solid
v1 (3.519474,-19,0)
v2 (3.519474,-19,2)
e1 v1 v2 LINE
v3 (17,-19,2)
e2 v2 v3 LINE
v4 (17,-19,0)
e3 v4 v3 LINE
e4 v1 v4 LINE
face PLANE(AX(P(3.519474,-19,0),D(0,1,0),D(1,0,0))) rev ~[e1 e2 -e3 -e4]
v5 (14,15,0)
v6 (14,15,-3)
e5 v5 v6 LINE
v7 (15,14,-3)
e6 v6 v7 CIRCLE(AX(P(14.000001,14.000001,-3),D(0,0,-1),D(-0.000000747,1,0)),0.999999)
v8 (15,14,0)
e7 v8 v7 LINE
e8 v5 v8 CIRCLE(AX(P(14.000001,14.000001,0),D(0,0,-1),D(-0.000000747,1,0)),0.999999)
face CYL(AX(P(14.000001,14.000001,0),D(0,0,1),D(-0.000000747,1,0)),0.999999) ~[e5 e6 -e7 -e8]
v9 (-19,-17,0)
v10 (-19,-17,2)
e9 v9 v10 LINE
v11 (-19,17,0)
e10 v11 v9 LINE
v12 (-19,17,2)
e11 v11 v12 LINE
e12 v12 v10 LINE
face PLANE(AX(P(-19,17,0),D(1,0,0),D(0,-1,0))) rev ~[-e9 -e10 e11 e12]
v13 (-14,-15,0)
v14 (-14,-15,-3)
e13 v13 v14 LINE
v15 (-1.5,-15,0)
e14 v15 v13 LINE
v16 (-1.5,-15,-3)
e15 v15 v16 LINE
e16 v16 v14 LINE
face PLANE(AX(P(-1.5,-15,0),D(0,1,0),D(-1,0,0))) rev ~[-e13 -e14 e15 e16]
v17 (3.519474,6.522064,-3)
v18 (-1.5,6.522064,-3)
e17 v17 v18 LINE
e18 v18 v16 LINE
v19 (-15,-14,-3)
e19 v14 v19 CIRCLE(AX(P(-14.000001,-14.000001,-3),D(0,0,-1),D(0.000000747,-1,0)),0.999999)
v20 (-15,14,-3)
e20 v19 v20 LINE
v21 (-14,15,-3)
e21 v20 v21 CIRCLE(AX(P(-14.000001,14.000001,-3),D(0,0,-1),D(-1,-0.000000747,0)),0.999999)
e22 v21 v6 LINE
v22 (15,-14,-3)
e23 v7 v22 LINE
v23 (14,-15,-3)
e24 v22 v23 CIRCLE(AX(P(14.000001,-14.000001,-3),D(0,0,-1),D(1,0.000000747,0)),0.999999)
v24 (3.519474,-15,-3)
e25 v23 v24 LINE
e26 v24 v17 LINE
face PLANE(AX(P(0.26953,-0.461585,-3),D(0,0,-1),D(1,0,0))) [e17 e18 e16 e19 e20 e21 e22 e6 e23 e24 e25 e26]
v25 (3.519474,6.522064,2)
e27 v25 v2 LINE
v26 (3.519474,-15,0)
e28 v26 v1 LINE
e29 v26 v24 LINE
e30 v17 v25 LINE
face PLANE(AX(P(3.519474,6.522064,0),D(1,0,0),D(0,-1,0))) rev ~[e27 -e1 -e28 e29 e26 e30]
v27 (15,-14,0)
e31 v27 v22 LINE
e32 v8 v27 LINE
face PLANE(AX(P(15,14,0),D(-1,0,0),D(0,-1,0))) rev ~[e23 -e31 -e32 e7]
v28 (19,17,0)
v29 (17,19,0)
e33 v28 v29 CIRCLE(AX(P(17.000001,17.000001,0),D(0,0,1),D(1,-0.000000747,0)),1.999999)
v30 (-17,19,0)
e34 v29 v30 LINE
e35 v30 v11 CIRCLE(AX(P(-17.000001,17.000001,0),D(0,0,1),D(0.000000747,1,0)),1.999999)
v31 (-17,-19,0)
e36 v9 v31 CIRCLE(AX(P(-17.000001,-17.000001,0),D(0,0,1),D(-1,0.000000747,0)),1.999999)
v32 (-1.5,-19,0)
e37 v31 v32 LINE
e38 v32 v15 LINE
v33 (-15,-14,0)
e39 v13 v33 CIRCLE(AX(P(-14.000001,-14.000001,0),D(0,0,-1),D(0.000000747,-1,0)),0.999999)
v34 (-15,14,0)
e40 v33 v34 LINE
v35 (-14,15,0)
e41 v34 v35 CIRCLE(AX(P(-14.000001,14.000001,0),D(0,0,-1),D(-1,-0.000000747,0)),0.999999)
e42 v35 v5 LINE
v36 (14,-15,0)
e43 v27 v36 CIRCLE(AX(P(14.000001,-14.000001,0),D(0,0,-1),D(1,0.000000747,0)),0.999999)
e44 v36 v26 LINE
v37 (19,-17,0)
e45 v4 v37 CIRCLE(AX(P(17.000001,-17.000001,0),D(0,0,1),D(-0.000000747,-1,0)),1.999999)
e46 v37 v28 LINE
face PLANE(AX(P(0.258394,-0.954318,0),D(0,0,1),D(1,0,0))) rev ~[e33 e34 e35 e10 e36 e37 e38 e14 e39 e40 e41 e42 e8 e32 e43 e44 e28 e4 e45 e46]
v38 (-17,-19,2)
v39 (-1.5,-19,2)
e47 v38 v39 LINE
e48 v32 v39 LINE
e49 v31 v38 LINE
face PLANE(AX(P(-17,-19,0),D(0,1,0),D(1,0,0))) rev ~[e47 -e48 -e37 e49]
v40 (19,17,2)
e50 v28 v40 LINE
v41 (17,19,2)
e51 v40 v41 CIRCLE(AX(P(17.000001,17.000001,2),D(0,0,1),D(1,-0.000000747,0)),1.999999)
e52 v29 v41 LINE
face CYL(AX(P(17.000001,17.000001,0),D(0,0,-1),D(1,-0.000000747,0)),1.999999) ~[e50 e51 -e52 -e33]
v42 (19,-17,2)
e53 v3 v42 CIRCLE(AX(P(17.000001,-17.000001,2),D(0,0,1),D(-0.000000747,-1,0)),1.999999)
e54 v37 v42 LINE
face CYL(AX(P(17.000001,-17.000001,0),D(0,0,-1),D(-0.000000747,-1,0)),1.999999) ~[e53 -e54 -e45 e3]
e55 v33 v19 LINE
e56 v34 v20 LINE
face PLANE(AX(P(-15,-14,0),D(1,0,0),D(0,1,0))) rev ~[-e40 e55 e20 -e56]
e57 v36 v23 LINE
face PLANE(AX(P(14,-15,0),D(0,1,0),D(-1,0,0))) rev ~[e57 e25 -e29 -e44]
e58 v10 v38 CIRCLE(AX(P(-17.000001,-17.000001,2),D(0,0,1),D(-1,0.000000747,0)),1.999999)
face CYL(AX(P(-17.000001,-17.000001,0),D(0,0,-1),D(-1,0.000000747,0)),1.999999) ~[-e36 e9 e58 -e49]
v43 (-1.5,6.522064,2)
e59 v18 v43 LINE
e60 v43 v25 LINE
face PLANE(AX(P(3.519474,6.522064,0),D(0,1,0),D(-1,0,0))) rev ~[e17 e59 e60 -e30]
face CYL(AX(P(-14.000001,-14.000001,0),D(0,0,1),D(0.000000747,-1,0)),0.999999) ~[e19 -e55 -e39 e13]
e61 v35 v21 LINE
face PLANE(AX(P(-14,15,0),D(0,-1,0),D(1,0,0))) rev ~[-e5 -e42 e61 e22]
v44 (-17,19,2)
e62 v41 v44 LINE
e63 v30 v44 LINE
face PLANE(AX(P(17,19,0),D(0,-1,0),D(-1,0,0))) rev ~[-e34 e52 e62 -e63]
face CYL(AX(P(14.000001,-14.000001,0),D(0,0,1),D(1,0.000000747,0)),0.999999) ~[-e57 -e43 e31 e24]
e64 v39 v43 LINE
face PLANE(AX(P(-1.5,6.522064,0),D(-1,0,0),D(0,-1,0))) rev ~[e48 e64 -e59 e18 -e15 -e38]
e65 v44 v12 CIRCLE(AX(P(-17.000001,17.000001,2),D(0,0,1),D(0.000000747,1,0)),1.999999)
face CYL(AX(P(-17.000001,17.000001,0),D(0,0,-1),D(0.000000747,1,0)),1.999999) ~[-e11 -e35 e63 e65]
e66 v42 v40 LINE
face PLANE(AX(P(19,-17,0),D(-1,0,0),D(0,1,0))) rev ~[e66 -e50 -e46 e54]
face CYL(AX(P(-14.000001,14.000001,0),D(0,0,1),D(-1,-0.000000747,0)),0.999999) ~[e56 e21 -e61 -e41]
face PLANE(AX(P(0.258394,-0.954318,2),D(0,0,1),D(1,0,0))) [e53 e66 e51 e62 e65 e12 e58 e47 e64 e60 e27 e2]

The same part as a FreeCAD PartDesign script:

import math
import FreeCAD as App
import Part
import Sketcher
from FreeCAD import Vector
Q = App.Units.Quantity

doc = App.newDocument("Part")
body = doc.addObject("PartDesign::Body", "Body")

# Sketch on XY plane
sketch1 = body.newObject("Sketcher::SketchObject", "Sketch")
sketch1.AttachmentSupport = (doc.getObject("XY_Plane"), [""])
sketch1.MapMode = "FlatFace"
sketch1.addGeometry([
    Part.LineSegment(Vector(17, 19, 0), Vector(-17, 19, 0)),  # 0
    Part.ArcOfCircle(Part.Circle(Vector(-17.000001, 17.000001, 0), Vector(0, 0, 1), 1.999999), math.radians(89.999957), math.radians(180.000043)),  # 1
    Part.LineSegment(Vector(-19, 17, 0), Vector(-19, -17, 0)),  # 2
    Part.ArcOfCircle(Part.Circle(Vector(-17.000001, -17.000001, 0), Vector(0, 0, 1), 1.999999), math.radians(179.999957), math.radians(270.000043)),  # 3
    Part.LineSegment(Vector(-17, -19, 0), Vector(-1.5, -19, 0)),  # 4
    Part.LineSegment(Vector(-1.5, -19, 0), Vector(-1.5, 6.522064, 0)),  # 5
    Part.LineSegment(Vector(-1.5, 6.522064, 0), Vector(3.519474, 6.522064, 0)),  # 6
    Part.LineSegment(Vector(3.519474, 6.522064, 0), Vector(3.519474, -19, 0)),  # 7
    Part.LineSegment(Vector(3.519474, -19, 0), Vector(17, -19, 0)),  # 8
    Part.ArcOfCircle(Part.Circle(Vector(17.000001, -17.000001, 0), Vector(0, 0, 1), 1.999999), math.radians(-90.000043), math.radians(0.000043)),  # 9
    Part.LineSegment(Vector(19, -17, 0), Vector(19, 17, 0)),  # 10
    Part.ArcOfCircle(Part.Circle(Vector(17.000001, 17.000001, 0), Vector(0, 0, 1), 1.999999), math.radians(-0.000043), math.radians(90.000043)),  # 11
], False)
sketch1.addConstraint([
    Sketcher.Constraint("Tangent", 0, 2, 1, 1),
    Sketcher.Constraint("Tangent", 1, 2, 2, 1),
    Sketcher.Constraint("Tangent", 2, 2, 3, 1),
    Sketcher.Constraint("Tangent", 3, 2, 4, 1),
    Sketcher.Constraint("Coincident", 4, 2, 5, 1),
    Sketcher.Constraint("Coincident", 5, 2, 6, 1),
    Sketcher.Constraint("Coincident", 6, 2, 7, 1),
    Sketcher.Constraint("Coincident", 7, 2, 8, 1),
    Sketcher.Constraint("Tangent", 8, 2, 9, 1),
    Sketcher.Constraint("Tangent", 9, 2, 10, 1),
    Sketcher.Constraint("Tangent", 10, 2, 11, 1),
    Sketcher.Constraint("Tangent", 11, 2, 0, 1),
    Sketcher.Constraint("Horizontal", 0),
    Sketcher.Constraint("Vertical", 2),
    Sketcher.Constraint("Horizontal", 4),
    Sketcher.Constraint("Vertical", 5),
    Sketcher.Constraint("Horizontal", 6),
    Sketcher.Constraint("Vertical", 7),
    Sketcher.Constraint("Horizontal", 8),
    Sketcher.Constraint("Vertical", 10),
    Sketcher.Constraint("Equal", 1, 3),
    Sketcher.Constraint("Equal", 3, 9),
    Sketcher.Constraint("Equal", 9, 11),
    Sketcher.Constraint("Symmetric", 1, 3, 9, 3, -1, 1),
    Sketcher.Constraint("Horizontal", 3, 3, 9, 3),
    Sketcher.Constraint("Equal", 0, 2),
    Sketcher.Constraint("Radius", 1, Q("1.999999 mm")),
    Sketcher.Constraint("DistanceX", 0, 2, 0, 1, Q("34 mm")),
    Sketcher.Constraint("DistanceX", 4, 1, 4, 2, Q("15.5 mm")),
    Sketcher.Constraint("DistanceX", 6, 1, 6, 2, Q("5.019474 mm")),
    Sketcher.Constraint("DistanceY", 5, 1, 5, 2, Q("25.522064 mm")),
])
pad1 = body.newObject("PartDesign::Pad", "Pad")
pad1.Profile = sketch1
pad1.Length = 2

# Sketch on XY plane
sketch2 = body.newObject("Sketcher::SketchObject", "Sketch001")
sketch2.AttachmentSupport = (doc.getObject("XY_Plane"), [""])
sketch2.MapMode = "FlatFace"
sketch2.addGeometry([
    Part.LineSegment(Vector(-1.5, -15, 0), Vector(-14, -15, 0)),  # 0
    Part.ArcOfCircle(Part.Circle(Vector(-14.000001, -14.000001, 0), Vector(0, 0, 1), 0.999999), math.radians(179.999957), math.radians(270.000043)),  # 1
    Part.LineSegment(Vector(-15, -14, 0), Vector(-15, 14, 0)),  # 2
    Part.ArcOfCircle(Part.Circle(Vector(-14.000001, 14.000001, 0), Vector(0, 0, 1), 0.999999), math.radians(89.999957), math.radians(180.000043)),  # 3
    Part.LineSegment(Vector(-14, 15, 0), Vector(14, 15, 0)),  # 4
    Part.ArcOfCircle(Part.Circle(Vector(14.000001, 14.000001, 0), Vector(0, 0, 1), 0.999999), math.radians(-0.000043), math.radians(90.000043)),  # 5
    Part.LineSegment(Vector(15, 14, 0), Vector(15, -14, 0)),  # 6
    Part.ArcOfCircle(Part.Circle(Vector(14.000001, -14.000001, 0), Vector(0, 0, 1), 0.999999), math.radians(-90.000043), math.radians(0.000043)),  # 7
    Part.LineSegment(Vector(14, -15, 0), Vector(3.519474, -15, 0)),  # 8
    Part.LineSegment(Vector(3.519474, -15, 0), Vector(3.519474, 6.522064, 0)),  # 9
    Part.LineSegment(Vector(3.519474, 6.522064, 0), Vector(-1.5, 6.522064, 0)),  # 10
    Part.LineSegment(Vector(-1.5, 6.522064, 0), Vector(-1.5, -15, 0)),  # 11
], False)
sketch2.addConstraint([
    Sketcher.Constraint("Tangent", 0, 2, 1, 2),
    Sketcher.Constraint("Tangent", 1, 1, 2, 1),
    Sketcher.Constraint("Tangent", 2, 2, 3, 2),
    Sketcher.Constraint("Tangent", 3, 1, 4, 1),
    Sketcher.Constraint("Tangent", 4, 2, 5, 2),
    Sketcher.Constraint("Tangent", 5, 1, 6, 1),
    Sketcher.Constraint("Tangent", 6, 2, 7, 2),
    Sketcher.Constraint("Tangent", 7, 1, 8, 1),
    Sketcher.Constraint("Coincident", 8, 2, 9, 1),
    Sketcher.Constraint("Coincident", 9, 2, 10, 1),
    Sketcher.Constraint("Coincident", 10, 2, 11, 1),
    Sketcher.Constraint("Coincident", 11, 2, 0, 1),
    Sketcher.Constraint("Horizontal", 0),
    Sketcher.Constraint("Vertical", 2),
    Sketcher.Constraint("Horizontal", 4),
    Sketcher.Constraint("Vertical", 6),
    Sketcher.Constraint("Horizontal", 8),
    Sketcher.Constraint("Vertical", 9),
    Sketcher.Constraint("Horizontal", 10),
    Sketcher.Constraint("Vertical", 11),
    Sketcher.Constraint("Equal", 1, 3),
    Sketcher.Constraint("Equal", 3, 5),
    Sketcher.Constraint("Equal", 5, 7),
    Sketcher.Constraint("Symmetric", 1, 3, 5, 3, -1, 1),
    Sketcher.Constraint("Horizontal", 1, 3, 7, 3),
    Sketcher.Constraint("Equal", 4, 2),
    Sketcher.Constraint("Radius", 1, Q("0.999999 mm")),
    Sketcher.Constraint("DistanceX", 4, 1, 4, 2, Q("28 mm")),
    Sketcher.Constraint("DistanceX", 0, 2, 0, 1, Q("12.5 mm")),
    Sketcher.Constraint("DistanceX", 8, 2, 8, 1, Q("10.480526 mm")),
    Sketcher.Constraint("DistanceY", 9, 1, 9, 2, Q("21.522064 mm")),
])
pad2 = body.newObject("PartDesign::Pad", "Pad001")
pad2.Profile = sketch2
pad2.Length = 3
pad2.Reversed = True

doc.recompute()
